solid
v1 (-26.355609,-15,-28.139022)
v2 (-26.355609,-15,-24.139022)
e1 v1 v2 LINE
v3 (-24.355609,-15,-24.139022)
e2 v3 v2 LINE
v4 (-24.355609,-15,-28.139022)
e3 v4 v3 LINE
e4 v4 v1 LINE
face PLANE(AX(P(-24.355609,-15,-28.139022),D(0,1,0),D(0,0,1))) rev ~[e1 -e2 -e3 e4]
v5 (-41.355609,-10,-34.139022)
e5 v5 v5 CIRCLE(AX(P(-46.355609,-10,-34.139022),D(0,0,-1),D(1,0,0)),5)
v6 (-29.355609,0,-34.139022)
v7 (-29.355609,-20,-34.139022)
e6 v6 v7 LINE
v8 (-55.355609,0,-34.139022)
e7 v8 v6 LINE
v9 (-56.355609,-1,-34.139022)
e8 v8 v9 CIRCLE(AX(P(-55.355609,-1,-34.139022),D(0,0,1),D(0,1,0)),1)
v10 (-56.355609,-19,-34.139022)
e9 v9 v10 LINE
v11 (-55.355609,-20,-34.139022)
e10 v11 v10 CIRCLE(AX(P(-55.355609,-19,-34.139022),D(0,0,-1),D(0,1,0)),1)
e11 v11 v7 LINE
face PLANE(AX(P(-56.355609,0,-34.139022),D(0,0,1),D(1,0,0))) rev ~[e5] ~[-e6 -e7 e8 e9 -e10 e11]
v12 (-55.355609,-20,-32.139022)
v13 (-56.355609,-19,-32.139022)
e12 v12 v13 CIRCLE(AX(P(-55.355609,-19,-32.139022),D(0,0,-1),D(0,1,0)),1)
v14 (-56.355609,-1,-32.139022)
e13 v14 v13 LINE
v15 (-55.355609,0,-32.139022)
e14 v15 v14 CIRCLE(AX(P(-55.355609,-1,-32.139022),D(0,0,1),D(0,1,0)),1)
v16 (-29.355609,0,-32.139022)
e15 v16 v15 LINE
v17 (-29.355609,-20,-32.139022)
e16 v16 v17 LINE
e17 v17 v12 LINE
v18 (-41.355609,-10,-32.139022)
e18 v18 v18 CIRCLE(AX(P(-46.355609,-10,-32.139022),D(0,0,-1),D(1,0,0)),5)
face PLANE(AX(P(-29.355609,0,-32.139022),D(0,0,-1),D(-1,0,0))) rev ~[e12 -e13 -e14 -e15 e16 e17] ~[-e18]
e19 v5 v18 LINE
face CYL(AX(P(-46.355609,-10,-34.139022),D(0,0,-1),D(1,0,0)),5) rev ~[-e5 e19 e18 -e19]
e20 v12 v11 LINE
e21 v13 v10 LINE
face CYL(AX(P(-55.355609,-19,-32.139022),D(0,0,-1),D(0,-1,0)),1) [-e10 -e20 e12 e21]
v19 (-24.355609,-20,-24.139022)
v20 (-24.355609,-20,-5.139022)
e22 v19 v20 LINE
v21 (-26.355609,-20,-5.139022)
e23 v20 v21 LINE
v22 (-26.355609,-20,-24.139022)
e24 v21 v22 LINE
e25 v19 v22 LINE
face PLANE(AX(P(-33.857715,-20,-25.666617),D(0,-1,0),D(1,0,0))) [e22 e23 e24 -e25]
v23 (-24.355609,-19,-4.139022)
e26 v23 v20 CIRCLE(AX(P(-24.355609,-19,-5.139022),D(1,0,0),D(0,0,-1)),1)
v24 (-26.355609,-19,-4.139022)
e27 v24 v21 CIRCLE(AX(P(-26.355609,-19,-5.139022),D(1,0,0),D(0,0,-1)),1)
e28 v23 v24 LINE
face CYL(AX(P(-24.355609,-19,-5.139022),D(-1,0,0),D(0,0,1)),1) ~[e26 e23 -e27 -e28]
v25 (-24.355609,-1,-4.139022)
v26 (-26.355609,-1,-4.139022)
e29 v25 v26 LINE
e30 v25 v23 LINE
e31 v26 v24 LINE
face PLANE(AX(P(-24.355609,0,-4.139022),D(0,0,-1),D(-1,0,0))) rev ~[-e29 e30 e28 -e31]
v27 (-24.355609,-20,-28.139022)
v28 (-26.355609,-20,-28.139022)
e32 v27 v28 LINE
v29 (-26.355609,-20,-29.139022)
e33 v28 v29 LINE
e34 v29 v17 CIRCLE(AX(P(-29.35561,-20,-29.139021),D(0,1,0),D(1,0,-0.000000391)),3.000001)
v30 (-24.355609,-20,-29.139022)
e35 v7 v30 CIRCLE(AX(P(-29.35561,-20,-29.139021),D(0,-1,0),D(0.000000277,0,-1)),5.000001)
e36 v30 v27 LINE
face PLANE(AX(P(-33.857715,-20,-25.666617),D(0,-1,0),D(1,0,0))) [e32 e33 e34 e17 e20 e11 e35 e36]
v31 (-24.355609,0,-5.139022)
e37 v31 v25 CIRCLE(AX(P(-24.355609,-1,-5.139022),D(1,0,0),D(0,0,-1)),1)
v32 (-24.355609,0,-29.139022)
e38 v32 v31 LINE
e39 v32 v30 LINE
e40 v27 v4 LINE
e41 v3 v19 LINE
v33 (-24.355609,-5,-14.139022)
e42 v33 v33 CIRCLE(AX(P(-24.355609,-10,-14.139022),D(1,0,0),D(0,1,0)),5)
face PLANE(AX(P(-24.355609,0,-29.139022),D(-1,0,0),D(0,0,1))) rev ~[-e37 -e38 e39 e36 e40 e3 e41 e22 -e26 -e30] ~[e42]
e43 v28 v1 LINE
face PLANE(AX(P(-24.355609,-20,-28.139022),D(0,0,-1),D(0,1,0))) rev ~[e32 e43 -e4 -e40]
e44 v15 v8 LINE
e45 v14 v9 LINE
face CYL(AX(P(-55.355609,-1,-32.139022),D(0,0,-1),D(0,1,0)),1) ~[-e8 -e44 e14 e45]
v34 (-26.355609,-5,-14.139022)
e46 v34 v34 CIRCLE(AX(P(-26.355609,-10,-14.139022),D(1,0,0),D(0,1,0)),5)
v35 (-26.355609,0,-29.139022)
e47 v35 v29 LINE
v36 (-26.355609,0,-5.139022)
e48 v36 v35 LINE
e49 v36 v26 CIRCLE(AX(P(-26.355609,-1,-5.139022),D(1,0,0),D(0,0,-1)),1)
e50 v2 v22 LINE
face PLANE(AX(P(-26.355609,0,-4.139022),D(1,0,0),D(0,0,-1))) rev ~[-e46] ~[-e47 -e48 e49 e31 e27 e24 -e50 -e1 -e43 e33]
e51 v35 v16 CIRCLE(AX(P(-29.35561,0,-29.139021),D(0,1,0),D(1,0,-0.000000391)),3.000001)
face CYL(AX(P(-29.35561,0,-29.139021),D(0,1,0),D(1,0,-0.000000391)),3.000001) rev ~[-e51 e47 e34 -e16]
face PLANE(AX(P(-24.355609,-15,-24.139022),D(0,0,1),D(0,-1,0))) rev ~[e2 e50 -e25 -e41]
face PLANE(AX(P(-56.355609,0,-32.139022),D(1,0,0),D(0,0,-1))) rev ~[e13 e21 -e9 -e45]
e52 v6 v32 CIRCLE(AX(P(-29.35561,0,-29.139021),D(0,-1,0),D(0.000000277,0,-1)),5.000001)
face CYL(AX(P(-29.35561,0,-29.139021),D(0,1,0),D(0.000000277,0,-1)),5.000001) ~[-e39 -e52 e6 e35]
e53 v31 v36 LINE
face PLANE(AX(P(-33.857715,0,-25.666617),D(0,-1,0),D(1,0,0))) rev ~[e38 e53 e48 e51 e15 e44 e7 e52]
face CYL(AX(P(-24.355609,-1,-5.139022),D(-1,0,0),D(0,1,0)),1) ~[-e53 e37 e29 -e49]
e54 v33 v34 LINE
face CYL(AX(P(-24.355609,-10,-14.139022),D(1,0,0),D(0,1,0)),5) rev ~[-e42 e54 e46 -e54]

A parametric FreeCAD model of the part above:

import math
import FreeCAD as App
import Part
import Sketcher
from FreeCAD import Vector


def edges_at(feature, points):
    """Names of the edges that pass closest to the given points."""
    edges = feature.Shape.Edges
    near = lambda p: min(range(len(edges)), key=lambda i: edges[i].distToShape(Part.Vertex(*p))[0])
    return sorted({f"Edge{near(p) + 1}" for p in points})

doc = App.newDocument("Part")
body = doc.addObject("PartDesign::Body", "Body")

sketch1 = body.newObject("Sketcher::SketchObject", "Sketch")
sketch1.AttachmentSupport = (doc.getObject("XZ_Plane"), [""])
sketch1.MapMode = "FlatFace"
sketch1.addGeometry(Part.LineSegment(Vector(-29.4, -32.1, 0), Vector(-56.4, -32.1, 0)), False)
sketch1.addGeometry(Part.LineSegment(Vector(-56.4, -32.1, 0), Vector(-56.4, -34.1, 0)), False)
sketch1.addGeometry(Part.LineSegment(Vector(-56.4, -34.1, 0), Vector(-29.4, -34.1, 0)), False)
sketch1.addGeometry(Part.ArcOfCircle(Part.Circle(Vector(-29.4, -29.1, 0), Vector(0, 0, 1), 5), math.radians(-90), math.radians(0)), False)
sketch1.addGeometry(Part.LineSegment(Vector(-24.4, -29.1, 0), Vector(-24.4, -4.1, 0)), False)
sketch1.addGeometry(Part.LineSegment(Vector(-24.4, -4.1, 0), Vector(-26.4, -4.1, 0)), False)
sketch1.addGeometry(Part.LineSegment(Vector(-26.4, -4.1, 0), Vector(-26.4, -29.1, 0)), False)
sketch1.addGeometry(Part.ArcOfCircle(Part.Circle(Vector(-29.4, -29.1, 0), Vector(0, 0, 1), 3), math.radians(-90), math.radians(0)), False)
sketch1.addConstraint(Sketcher.Constraint("Coincident", 0, 2, 1, 1))
sketch1.addConstraint(Sketcher.Constraint("Coincident", 1, 2, 2, 1))
sketch1.addConstraint(Sketcher.Constraint("Tangent", 2, 2, 3, 1))
sketch1.addConstraint(Sketcher.Constraint("Tangent", 3, 2, 4, 1))
sketch1.addConstraint(Sketcher.Constraint("Coincident", 4, 2, 5, 1))
sketch1.addConstraint(Sketcher.Constraint("Coincident", 5, 2, 6, 1))
sketch1.addConstraint(Sketcher.Constraint("Tangent", 6, 2, 7, 2))
sketch1.addConstraint(Sketcher.Constraint("Tangent", 7, 1, 0, 1))
sketch1.addConstraint(Sketcher.Constraint("Horizontal", 0))
sketch1.addConstraint(Sketcher.Constraint("Vertical", 1))
sketch1.addConstraint(Sketcher.Constraint("Horizontal", 2))
sketch1.addConstraint(Sketcher.Constraint("Vertical", 4))
sketch1.addConstraint(Sketcher.Constraint("Horizontal", 5))
sketch1.addConstraint(Sketcher.Constraint("Vertical", 6))
sketch1.addConstraint(Sketcher.Constraint("Coincident", 7, 3, 3, 3))
sketch1.addConstraint(Sketcher.Constraint("Radius", 3, 5.000001))
sketch1.addConstraint(Sketcher.Constraint("Radius", 7, 3.000001))
sketch1.addConstraint(Sketcher.Constraint("DistanceX", 0, 2, 0, 1, 27.0))
sketch1.addConstraint(Sketcher.Constraint("DistanceY", 4, 1, 4, 2, 25.0))
sketch1.addConstraint(Sketcher.Constraint("DistanceX", 3, 3, -1, 1, 29.35561))
sketch1.addConstraint(Sketcher.Constraint("DistanceY", 3, 3, -1, 1, 29.139021))
pad1 = body.newObject("PartDesign::Pad", "Pad")
pad1.Profile = sketch1
pad1.Length = 20

sketch2 = body.newObject("Sketcher::SketchObject", "Sketch001")
sketch2.AttachmentSupport = (doc.getObject("YZ_Plane"), [""])
sketch2.MapMode = "FlatFace"
sketch2.AttachmentOffset = App.Placement(Vector(0, 0, -24.355609), App.Rotation())
sketch2.addGeometry(Part.LineSegment(Vector(-20, -24.1, 0), Vector(-20, -28.1, 0)), False)
sketch2.addGeometry(Part.LineSegment(Vector(-20, -28.1, 0), Vector(-15, -28.1, 0)), False)
sketch2.addGeometry(Part.LineSegment(Vector(-15, -28.1, 0), Vector(-15, -24.1, 0)), False)
sketch2.addGeometry(Part.LineSegment(Vector(-15, -24.1, 0), Vector(-20, -24.1, 0)), False)
sketch2.addConstraint(Sketcher.Constraint("Coincident", 0, 2, 1, 1))
sketch2.addConstraint(Sketcher.Constraint("Coincident", 1, 2, 2, 1))
sketch2.addConstraint(Sketcher.Constraint("Coincident", 2, 2, 3, 1))
sketch2.addConstraint(Sketcher.Constraint("Coincident", 3, 2, 0, 1))
sketch2.addConstraint(Sketcher.Constraint("Vertical", 0))
sketch2.addConstraint(Sketcher.Constraint("Horizontal", 1))
sketch2.addConstraint(Sketcher.Constraint("Vertical", 2))
sketch2.addConstraint(Sketcher.Constraint("Horizontal", 3))
sketch2.addConstraint(Sketcher.Constraint("DistanceX", 1, 1, 1, 2, 5.0))
sketch2.addConstraint(Sketcher.Constraint("DistanceY", 0, 2, 0, 1, 4.0))
sketch2.addConstraint(Sketcher.Constraint("DistanceX", 0, 2, -1, 1, 20.0))
sketch2.addConstraint(Sketcher.Constraint("DistanceY", 0, 2, -1, 1, 28.139022))
pocket1 = body.newObject("PartDesign::Pocket", "Pocket")
pocket1.Profile = sketch2
pocket1.Length = 3

sketch3 = body.newObject("Sketcher::SketchObject", "Sketch002")
sketch3.AttachmentSupport = (doc.getObject("YZ_Plane"), [""])
sketch3.MapMode = "FlatFace"
sketch3.AttachmentOffset = App.Placement(Vector(0, 0, -24.355609), App.Rotation())
sketch3.addGeometry(Part.Circle(Vector(-10, -14, 0), Vector(0, 0, 1), 5), False)
sketch3.addConstraint(Sketcher.Constraint("Diameter", 0, 10.0))
sketch3.addConstraint(Sketcher.Constraint("DistanceX", 0, 3, -1, 1, 10.0))
sketch3.addConstraint(Sketcher.Constraint("DistanceY", 0, 3, -1, 1, 14.139022))
pocket2 = body.newObject("PartDesign::Pocket", "Pocket001")
pocket2.Profile = sketch3
pocket2.Length = 3

sketch4 = body.newObject("Sketcher::SketchObject", "Sketch003")
sketch4.AttachmentSupport = (doc.getObject("XY_Plane"), [""])
sketch4.MapMode = "FlatFace"
sketch4.AttachmentOffset = App.Placement(Vector(0, 0, -34.139022), App.Rotation())
sketch4.addGeometry(Part.Circle(Vector(-46, -10, 0), Vector(0, 0, 1), 5), False)
sketch4.addConstraint(Sketcher.Constraint("Diameter", 0, 10.0))
sketch4.addConstraint(Sketcher.Constraint("DistanceY", 0, 3, -1, 1, 10.0))
sketch4.addConstraint(Sketcher.Constraint("DistanceX", 0, 3, -1, 1, 46.355609))
pocket3 = body.newObject("PartDesign::Pocket", "Pocket002")
pocket3.Profile = sketch4
pocket3.Length = 3
pocket3.Reversed = True
doc.recompute()

fillet = body.newObject("PartDesign::Fillet", "Fillet")
fillet.Base = (pocket3, edges_at(pocket3, [
    (-25.356, -20, -4.139),
    (-25.356, 0, -4.139),
    (-56.356, -20, -33.139),
    (-56.356, 0, -33.139),
]))
fillet.Radius = 1

doc.recompute()
